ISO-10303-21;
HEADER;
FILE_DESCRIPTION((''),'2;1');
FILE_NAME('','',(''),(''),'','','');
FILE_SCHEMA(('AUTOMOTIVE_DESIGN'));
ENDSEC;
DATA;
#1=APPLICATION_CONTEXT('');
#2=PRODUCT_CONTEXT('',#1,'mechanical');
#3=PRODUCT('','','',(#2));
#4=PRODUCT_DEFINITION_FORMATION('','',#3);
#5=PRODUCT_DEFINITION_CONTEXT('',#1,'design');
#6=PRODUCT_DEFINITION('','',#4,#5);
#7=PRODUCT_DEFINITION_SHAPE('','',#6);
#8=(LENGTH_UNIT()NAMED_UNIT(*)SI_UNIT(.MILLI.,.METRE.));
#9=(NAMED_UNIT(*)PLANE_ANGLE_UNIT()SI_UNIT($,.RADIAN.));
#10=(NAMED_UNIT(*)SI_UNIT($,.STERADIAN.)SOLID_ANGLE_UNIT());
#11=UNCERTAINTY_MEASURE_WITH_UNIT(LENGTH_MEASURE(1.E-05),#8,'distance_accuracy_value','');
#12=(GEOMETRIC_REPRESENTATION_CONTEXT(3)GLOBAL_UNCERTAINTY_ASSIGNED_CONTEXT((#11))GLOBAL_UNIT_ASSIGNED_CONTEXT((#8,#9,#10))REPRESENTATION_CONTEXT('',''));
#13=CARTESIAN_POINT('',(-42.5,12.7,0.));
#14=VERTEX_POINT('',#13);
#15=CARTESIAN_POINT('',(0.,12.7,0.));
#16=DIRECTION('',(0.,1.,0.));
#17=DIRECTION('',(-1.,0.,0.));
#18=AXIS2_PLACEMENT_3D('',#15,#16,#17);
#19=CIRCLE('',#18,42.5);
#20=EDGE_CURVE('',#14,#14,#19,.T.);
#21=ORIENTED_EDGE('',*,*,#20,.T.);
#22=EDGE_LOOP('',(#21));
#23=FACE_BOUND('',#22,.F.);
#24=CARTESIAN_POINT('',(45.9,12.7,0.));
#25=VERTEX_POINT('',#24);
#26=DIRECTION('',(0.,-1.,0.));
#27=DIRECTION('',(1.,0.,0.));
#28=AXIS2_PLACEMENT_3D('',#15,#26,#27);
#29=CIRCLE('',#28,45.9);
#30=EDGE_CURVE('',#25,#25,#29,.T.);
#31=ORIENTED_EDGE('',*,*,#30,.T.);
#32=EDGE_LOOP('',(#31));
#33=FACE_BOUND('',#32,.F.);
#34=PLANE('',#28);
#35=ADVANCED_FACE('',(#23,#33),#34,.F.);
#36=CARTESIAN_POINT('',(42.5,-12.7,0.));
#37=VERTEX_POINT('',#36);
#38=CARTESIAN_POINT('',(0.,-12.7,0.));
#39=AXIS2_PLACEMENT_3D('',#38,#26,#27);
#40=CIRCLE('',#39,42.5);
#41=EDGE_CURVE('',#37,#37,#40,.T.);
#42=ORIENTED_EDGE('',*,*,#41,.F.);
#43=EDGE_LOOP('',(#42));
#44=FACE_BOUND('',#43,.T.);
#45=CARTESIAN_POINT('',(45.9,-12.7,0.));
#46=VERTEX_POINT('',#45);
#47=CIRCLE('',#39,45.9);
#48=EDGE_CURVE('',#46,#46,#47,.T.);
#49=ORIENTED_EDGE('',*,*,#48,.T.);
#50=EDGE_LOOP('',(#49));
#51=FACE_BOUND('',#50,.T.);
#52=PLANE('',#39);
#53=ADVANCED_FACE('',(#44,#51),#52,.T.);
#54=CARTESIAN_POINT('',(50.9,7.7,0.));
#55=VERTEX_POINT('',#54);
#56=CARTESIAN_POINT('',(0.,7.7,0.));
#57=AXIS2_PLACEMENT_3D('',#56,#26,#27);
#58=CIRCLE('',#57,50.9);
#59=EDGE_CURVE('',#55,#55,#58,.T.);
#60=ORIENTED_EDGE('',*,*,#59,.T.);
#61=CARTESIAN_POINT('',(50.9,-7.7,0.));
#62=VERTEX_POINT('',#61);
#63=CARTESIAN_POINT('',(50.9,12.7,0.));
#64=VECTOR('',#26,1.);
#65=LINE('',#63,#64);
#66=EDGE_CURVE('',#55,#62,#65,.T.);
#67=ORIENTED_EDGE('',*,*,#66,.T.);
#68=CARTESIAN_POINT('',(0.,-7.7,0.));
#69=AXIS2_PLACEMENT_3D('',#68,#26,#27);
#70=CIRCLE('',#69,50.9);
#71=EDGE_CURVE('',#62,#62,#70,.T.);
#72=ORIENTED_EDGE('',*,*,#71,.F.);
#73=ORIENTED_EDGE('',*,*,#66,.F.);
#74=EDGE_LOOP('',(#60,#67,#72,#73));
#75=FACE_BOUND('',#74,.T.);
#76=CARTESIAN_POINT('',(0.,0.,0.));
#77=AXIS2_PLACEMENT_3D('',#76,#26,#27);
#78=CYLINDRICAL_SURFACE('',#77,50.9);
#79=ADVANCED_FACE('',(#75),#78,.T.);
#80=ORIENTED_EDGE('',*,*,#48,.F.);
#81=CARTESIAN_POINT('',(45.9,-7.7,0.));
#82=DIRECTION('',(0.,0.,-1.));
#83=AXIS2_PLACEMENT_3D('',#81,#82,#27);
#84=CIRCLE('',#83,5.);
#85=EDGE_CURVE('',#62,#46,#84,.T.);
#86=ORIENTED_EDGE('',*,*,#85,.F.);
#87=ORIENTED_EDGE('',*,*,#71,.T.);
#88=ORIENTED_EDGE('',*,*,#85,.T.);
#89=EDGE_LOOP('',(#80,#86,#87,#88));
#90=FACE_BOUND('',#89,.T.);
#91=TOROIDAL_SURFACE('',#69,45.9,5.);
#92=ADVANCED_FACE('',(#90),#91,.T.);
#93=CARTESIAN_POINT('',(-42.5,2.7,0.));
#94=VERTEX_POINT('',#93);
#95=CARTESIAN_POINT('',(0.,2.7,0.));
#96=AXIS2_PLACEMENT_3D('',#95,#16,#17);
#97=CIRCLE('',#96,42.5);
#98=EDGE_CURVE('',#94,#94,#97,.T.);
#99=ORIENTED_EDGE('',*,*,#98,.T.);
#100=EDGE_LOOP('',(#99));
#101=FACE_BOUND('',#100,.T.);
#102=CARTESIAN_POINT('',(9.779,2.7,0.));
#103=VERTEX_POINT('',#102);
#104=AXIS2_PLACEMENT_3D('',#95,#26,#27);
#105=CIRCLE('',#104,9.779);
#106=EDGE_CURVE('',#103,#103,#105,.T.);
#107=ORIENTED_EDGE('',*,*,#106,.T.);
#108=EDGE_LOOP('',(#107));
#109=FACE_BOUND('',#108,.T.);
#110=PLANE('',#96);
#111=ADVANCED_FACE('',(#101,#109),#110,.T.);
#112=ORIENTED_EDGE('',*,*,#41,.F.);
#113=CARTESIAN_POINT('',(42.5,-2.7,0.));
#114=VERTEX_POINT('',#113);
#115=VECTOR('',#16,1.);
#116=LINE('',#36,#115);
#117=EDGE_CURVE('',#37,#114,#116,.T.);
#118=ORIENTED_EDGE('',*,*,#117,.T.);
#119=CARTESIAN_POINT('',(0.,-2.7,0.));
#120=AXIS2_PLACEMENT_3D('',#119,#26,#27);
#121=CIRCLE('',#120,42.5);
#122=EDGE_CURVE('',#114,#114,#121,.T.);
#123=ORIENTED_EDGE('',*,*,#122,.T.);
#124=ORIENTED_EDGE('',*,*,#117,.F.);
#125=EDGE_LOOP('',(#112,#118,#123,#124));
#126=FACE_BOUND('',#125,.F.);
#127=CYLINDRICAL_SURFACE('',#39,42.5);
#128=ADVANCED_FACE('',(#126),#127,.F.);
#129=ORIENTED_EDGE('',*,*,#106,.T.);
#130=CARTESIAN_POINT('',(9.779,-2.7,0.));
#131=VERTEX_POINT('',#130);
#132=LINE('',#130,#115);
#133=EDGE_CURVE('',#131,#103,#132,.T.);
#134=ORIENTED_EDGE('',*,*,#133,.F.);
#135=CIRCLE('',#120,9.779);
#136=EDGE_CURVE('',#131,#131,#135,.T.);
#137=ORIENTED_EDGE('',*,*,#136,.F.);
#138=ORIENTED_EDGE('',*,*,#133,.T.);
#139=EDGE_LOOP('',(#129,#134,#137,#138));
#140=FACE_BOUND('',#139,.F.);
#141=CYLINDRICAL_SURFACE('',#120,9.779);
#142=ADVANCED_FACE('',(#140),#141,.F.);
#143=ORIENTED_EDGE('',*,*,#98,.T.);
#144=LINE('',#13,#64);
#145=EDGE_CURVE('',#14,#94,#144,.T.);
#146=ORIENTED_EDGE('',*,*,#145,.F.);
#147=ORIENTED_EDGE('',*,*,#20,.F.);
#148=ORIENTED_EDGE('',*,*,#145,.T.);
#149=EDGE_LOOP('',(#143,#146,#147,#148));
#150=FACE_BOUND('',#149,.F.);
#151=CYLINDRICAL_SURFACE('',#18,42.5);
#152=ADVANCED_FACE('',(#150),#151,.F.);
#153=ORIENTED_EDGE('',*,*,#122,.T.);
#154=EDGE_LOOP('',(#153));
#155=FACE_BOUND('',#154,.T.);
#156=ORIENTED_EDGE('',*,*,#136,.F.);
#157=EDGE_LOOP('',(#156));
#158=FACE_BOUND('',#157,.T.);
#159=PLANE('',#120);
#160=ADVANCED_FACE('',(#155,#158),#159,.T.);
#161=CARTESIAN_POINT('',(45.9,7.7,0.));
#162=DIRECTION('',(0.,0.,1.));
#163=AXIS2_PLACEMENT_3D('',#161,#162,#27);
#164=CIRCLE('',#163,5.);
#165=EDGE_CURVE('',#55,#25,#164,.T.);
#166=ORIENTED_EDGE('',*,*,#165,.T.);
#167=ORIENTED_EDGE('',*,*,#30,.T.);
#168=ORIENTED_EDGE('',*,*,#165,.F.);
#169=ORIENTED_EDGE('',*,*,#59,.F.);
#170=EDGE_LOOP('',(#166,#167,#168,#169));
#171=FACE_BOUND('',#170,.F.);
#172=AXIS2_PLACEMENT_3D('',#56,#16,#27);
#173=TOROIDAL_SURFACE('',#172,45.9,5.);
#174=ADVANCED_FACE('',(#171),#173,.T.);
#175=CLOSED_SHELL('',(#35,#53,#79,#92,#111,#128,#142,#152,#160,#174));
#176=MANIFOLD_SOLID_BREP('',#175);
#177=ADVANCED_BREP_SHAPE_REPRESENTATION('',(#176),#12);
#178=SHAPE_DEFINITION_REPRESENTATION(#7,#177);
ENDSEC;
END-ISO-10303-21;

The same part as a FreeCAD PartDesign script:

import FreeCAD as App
import Part
import Sketcher
Q = App.Units.Quantity


def edges_at(feature, points):
    """Names of the edges that pass closest to the given points."""
    edges = feature.Shape.Edges
    near = lambda p: min(range(len(edges)), key=lambda i: edges[i].distToShape(Part.Vertex(*p))[0])
    return sorted({f"Edge{near(p) + 1}" for p in points})

doc = App.newDocument("Part")
body = doc.addObject("PartDesign::Body", "Body")

sketch1 = body.newObject("Sketcher::SketchObject", "Sketch")
sketch1.AttachmentSupport = (doc.getObject("XZ_Plane"), [""])
sketch1.MapMode = "FlatFace"
sketch1.addGeometry(Part.Circle(App.Vector(0, 0, 0), App.Vector(0, 0, 1), 50.9), False)
sketch1.addConstraint([
    Sketcher.Constraint("Coincident", 0, 3, -1, 1),
    Sketcher.Constraint("Diameter", 0, Q("101.8 mm")),
])
pad1 = body.newObject("PartDesign::Pad", "Pad")
pad1.Profile = sketch1
pad1.Length = 25.4
pad1.Midplane = True
doc.recompute()

fillet = body.newObject("PartDesign::Fillet", "Fillet")
fillet.Base = (pad1, edges_at(pad1, [(-50.9, -12.7, 0), (-50.9, 12.7, 0)]))
fillet.Radius = 5

sketch2 = body.newObject("Sketcher::SketchObject", "Sketch001")
sketch2.AttachmentSupport = (doc.getObject("XZ_Plane"), [""])
sketch2.MapMode = "FlatFace"
sketch2.AttachmentOffset = App.Placement(App.Vector(0, 0, 12.7), App.Rotation())
sketch2.addGeometry(Part.Circle(App.Vector(0, 0, 0), App.Vector(0, 0, 1), 42.5), False)
sketch2.addConstraint([
    Sketcher.Constraint("Coincident", 0, 3, -1, 1),
    Sketcher.Constraint("Diameter", 0, Q("85 mm")),
])
pocket1 = body.newObject("PartDesign::Pocket", "Pocket")
pocket1.Profile = sketch2
pocket1.Length = 10

sketch3 = body.newObject("Sketcher::SketchObject", "Sketch002")
sketch3.AttachmentSupport = (doc.getObject("XZ_Plane"), [""])
sketch3.MapMode = "FlatFace"
sketch3.AttachmentOffset = App.Placement(App.Vector(0, 0, -12.7), App.Rotation())
sketch3.addGeometry(Part.Circle(App.Vector(0, 0, 0), App.Vector(0, 0, 1), 42.5), False)
sketch3.addConstraint([
    Sketcher.Constraint("Coincident", 0, 3, -1, 1),
    Sketcher.Constraint("Diameter", 0, Q("85 mm")),
])
pocket2 = body.newObject("PartDesign::Pocket", "Pocket001")
pocket2.Profile = sketch3
pocket2.Length = 10
pocket2.Reversed = True

sketch4 = body.newObject("Sketcher::SketchObject", "Sketch003")
sketch4.AttachmentSupport = (doc.getObject("XZ_Plane"), [""])
sketch4.MapMode = "FlatFace"
sketch4.AttachmentOffset = App.Placement(App.Vector(0, 0, 2.7), App.Rotation())
sketch4.addGeometry(Part.Circle(App.Vector(0, 0, 0), App.Vector(0, 0, 1), 9.779), False)
sketch4.addConstraint([
    Sketcher.Constraint("Coincident", 0, 3, -1, 1),
    Sketcher.Constraint("Diameter", 0, Q("19.558 mm")),
])
pocket3 = body.newObject("PartDesign::Pocket", "Pocket002")
pocket3.Profile = sketch4
pocket3.Type = "ThroughAll"

doc.recompute()
